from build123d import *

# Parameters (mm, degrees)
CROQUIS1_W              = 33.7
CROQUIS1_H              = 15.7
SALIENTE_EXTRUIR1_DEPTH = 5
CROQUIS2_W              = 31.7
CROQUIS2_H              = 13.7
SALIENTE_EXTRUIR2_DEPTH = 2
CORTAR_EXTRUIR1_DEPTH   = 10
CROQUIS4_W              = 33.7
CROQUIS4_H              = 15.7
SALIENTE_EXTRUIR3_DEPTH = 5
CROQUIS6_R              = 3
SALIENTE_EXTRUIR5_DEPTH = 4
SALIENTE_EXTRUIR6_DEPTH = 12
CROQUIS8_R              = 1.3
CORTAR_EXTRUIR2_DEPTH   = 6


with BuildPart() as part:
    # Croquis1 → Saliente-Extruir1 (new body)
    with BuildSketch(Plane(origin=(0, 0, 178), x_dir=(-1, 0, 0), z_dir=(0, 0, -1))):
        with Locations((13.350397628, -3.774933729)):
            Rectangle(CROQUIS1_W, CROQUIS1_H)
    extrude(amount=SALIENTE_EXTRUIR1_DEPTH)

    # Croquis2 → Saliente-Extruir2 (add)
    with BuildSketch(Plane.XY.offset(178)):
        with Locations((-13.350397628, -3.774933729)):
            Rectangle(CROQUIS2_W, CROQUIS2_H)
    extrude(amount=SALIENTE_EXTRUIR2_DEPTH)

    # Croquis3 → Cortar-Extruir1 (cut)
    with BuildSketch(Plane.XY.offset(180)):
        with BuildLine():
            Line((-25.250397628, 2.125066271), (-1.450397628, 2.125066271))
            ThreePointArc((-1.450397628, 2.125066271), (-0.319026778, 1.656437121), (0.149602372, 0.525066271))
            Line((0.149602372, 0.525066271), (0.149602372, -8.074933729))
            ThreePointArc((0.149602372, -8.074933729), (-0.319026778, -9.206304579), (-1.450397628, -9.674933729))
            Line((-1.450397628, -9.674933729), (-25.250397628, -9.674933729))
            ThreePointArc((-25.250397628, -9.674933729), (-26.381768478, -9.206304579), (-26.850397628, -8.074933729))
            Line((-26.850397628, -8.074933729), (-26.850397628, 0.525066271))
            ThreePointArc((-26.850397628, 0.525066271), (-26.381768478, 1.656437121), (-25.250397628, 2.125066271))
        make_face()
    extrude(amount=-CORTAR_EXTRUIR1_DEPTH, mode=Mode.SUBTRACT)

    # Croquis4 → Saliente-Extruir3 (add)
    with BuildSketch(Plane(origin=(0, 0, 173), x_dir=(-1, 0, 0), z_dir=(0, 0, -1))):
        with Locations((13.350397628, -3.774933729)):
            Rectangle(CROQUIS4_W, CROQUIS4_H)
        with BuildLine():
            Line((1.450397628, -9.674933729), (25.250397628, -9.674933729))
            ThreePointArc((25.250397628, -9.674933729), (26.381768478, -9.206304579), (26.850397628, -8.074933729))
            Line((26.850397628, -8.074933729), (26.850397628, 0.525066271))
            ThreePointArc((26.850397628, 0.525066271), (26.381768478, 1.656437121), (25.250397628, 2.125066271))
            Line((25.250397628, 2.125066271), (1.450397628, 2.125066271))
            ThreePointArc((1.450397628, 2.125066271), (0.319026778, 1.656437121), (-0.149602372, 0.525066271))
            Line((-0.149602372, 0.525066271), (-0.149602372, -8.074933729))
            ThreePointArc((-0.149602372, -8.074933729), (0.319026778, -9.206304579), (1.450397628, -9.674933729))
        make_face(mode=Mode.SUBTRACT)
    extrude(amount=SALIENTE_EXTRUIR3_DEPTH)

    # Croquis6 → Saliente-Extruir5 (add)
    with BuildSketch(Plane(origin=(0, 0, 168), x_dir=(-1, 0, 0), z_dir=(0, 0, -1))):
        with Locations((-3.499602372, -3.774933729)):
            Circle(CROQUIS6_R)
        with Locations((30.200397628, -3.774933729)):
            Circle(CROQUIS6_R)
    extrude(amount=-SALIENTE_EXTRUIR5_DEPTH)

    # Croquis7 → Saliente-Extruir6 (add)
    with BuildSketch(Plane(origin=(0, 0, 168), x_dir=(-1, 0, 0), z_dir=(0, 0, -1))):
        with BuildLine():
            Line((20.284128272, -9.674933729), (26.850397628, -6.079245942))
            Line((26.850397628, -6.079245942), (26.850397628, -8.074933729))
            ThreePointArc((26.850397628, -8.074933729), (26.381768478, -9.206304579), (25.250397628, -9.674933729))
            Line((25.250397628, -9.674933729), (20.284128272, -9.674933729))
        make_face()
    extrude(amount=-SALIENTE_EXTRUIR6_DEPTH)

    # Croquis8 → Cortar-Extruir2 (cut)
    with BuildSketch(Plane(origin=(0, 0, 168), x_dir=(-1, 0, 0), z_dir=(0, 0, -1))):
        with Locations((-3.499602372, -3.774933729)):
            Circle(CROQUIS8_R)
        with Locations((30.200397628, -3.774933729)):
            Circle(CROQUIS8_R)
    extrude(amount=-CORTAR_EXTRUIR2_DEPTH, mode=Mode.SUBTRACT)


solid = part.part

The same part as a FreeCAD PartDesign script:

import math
import FreeCAD as App
import Part
import Sketcher

V = App.Vector

doc = App.newDocument("Part")
params = doc.addObject("Spreadsheet::Sheet", "Params")
for row, (alias, value) in enumerate([
    ("sketch1_width", "33.7 mm"),
    ("sketch1_height", "15.7 mm"),
    ("pad1_length", "5 mm"),
    ("sketch2_width", "31.7 mm"),
    ("sketch2_height", "13.7 mm"),
    ("pad2_length", "2 mm"),
    ("sketch3_radius", "1.6 mm"),
    ("sketch3_width", "23.8 mm"),
    ("sketch3_height", "8.6 mm"),
    ("pocket1_length", "10 mm"),
    ("sketch4_radius", "1.6 mm"),
    ("sketch4_width", "33.7 mm"),
    ("sketch4_width2", "23.8 mm"),
    ("sketch4_height", "15.7 mm"),
    ("sketch4_height2", "8.6 mm"),
    ("pad3_length", "5 mm"),
    ("sketch5_diameter", "6 mm"),
    ("pad4_length", "4 mm"),
    ("sketch6_radius", "1.6 mm"),
    ("pad5_length", "12 mm"),
    ("sketch7_diameter", "2.6 mm"),
    ("pocket2_length", "6 mm"),
], start=1):
    params.set(f"A{row}", alias)
    params.set(f"B{row}", "=" + value)
    params.setAlias(f"B{row}", alias)

body = doc.addObject("PartDesign::Body", "Body")

# Sketch on XY plane
sketch1 = body.newObject("Sketcher::SketchObject", "Sketch")
sketch1.AttachmentSupport = (doc.getObject("XY_Plane"), [""])
sketch1.MapMode = "FlatFace"
sketch1.AttachmentOffset = App.Placement(V(0, 0, 178), App.Rotation())
sketch1.addGeometry(Part.LineSegment(V(3, 4, 0), V(3, -12, 0)), False)
sketch1.addGeometry(Part.LineSegment(V(3, -12, 0), V(-30, -12, 0)), False)
sketch1.addGeometry(Part.LineSegment(V(-30, -12, 0), V(-30, 4, 0)), False)
sketch1.addGeometry(Part.LineSegment(V(-30, 4, 0), V(3, 4, 0)), False)
sketch1.addConstraint(Sketcher.Constraint("Coincident", 0, 2, 1, 1))
sketch1.addConstraint(Sketcher.Constraint("Coincident", 1, 2, 2, 1))
sketch1.addConstraint(Sketcher.Constraint("Coincident", 2, 2, 3, 1))
sketch1.addConstraint(Sketcher.Constraint("Coincident", 3, 2, 0, 1))
sketch1.addConstraint(Sketcher.Constraint("Vertical", 0))
sketch1.addConstraint(Sketcher.Constraint("Horizontal", 1))
sketch1.addConstraint(Sketcher.Constraint("Vertical", 2))
sketch1.addConstraint(Sketcher.Constraint("Horizontal", 3))
sketch1.addConstraint(Sketcher.Constraint("DistanceX", 1, 2, 1, 1, 33.7))
sketch1.addConstraint(Sketcher.Constraint("DistanceY", 0, 2, 0, 1, 15.7))
sketch1.addConstraint(Sketcher.Constraint("DistanceX", -1, 1, 0, 2, 3.499602))
sketch1.addConstraint(Sketcher.Constraint("DistanceY", 0, 2, -1, 1, 11.624934))
sketch1.setExpression("Constraints[8]", "Params.sketch1_width")
sketch1.setExpression("Constraints[9]", "Params.sketch1_height")
pad1 = body.newObject("PartDesign::Pad", "Pad")
pad1.Profile = sketch1
pad1.setExpression("Length", "Params.pad1_length")
pad1.Reversed = True

# Sketch on XY plane
sketch2 = body.newObject("Sketcher::SketchObject", "Sketch001")
sketch2.AttachmentSupport = (doc.getObject("XY_Plane"), [""])
sketch2.MapMode = "FlatFace"
sketch2.AttachmentOffset = App.Placement(V(0, 0, 178), App.Rotation())
sketch2.addGeometry(Part.LineSegment(V(-29, 3, 0), V(-29, -11, 0)), False)
sketch2.addGeometry(Part.LineSegment(V(-29, -11, 0), V(2, -11, 0)), False)
sketch2.addGeometry(Part.LineSegment(V(2, -11, 0), V(2, 3, 0)), False)
sketch2.addGeometry(Part.LineSegment(V(2, 3, 0), V(-29, 3, 0)), False)
sketch2.addConstraint(Sketcher.Constraint("Coincident", 0, 2, 1, 1))
sketch2.addConstraint(Sketcher.Constraint("Coincident", 1, 2, 2, 1))
sketch2.addConstraint(Sketcher.Constraint("Coincident", 2, 2, 3, 1))
sketch2.addConstraint(Sketcher.Constraint("Coincident", 3, 2, 0, 1))
sketch2.addConstraint(Sketcher.Constraint("Vertical", 0))
sketch2.addConstraint(Sketcher.Constraint("Horizontal", 1))
sketch2.addConstraint(Sketcher.Constraint("Vertical", 2))
sketch2.addConstraint(Sketcher.Constraint("Horizontal", 3))
sketch2.addConstraint(Sketcher.Constraint("DistanceX", 1, 1, 1, 2, 31.7))
sketch2.addConstraint(Sketcher.Constraint("DistanceY", 0, 2, 0, 1, 13.7))
sketch2.addConstraint(Sketcher.Constraint("DistanceX", 0, 2, -1, 1, 29.200398))
sketch2.addConstraint(Sketcher.Constraint("DistanceY", 0, 2, -1, 1, 10.624934))
sketch2.setExpression("Constraints[8]", "Params.sketch2_width")
sketch2.setExpression("Constraints[9]", "Params.sketch2_height")
pad2 = body.newObject("PartDesign::Pad", "Pad001")
pad2.Profile = sketch2
pad2.setExpression("Length", "Params.pad2_length")

# Sketch on XY plane
sketch3 = body.newObject("Sketcher::SketchObject", "Sketch002")
sketch3.AttachmentSupport = (doc.getObject("XY_Plane"), [""])
sketch3.MapMode = "FlatFace"
sketch3.AttachmentOffset = App.Placement(V(0, 0, 180), App.Rotation())
sketch3.addGeometry(Part.LineSegment(V(-1.5, 2.1, 0), V(-25.3, 2.1, 0)), False)
sketch3.addGeometry(Part.ArcOfCircle(Part.Circle(V(-25.3, 0.5, 0), V(0, 0, 1), 1.6), math.radians(90), math.radians(180)), False)
sketch3.addGeometry(Part.LineSegment(V(-26.9, 0.5, 0), V(-26.9, -8.1, 0)), False)
sketch3.addGeometry(Part.ArcOfCircle(Part.Circle(V(-25.3, -8.1, 0), V(0, 0, 1), 1.6), math.radians(180), math.radians(270)), False)
sketch3.addGeometry(Part.LineSegment(V(-25.3, -9.7, 0), V(-1.5, -9.7, 0)), False)
sketch3.addGeometry(Part.ArcOfCircle(Part.Circle(V(-1.5, -8.1, 0), V(0, 0, 1), 1.6), math.radians(-90), math.radians(0)), False)
sketch3.addGeometry(Part.LineSegment(V(0.1, -8.1, 0), V(0.1, 0.5, 0)), False)
sketch3.addGeometry(Part.ArcOfCircle(Part.Circle(V(-1.5, 0.5, 0), V(0, 0, 1), 1.6), math.radians(0), math.radians(90)), False)
sketch3.addConstraint(Sketcher.Constraint("Tangent", 0, 2, 1, 1))
sketch3.addConstraint(Sketcher.Constraint("Tangent", 1, 2, 2, 1))
sketch3.addConstraint(Sketcher.Constraint("Tangent", 2, 2, 3, 1))
sketch3.addConstraint(Sketcher.Constraint("Tangent", 3, 2, 4, 1))
sketch3.addConstraint(Sketcher.Constraint("Tangent", 4, 2, 5, 1))
sketch3.addConstraint(Sketcher.Constraint("Tangent", 5, 2, 6, 1))
sketch3.addConstraint(Sketcher.Constraint("Tangent", 6, 2, 7, 1))
sketch3.addConstraint(Sketcher.Constraint("Tangent", 7, 2, 0, 1))
sketch3.addConstraint(Sketcher.Constraint("Horizontal", 0))
sketch3.addConstraint(Sketcher.Constraint("Vertical", 2))
sketch3.addConstraint(Sketcher.Constraint("Horizontal", 4))
sketch3.addConstraint(Sketcher.Constraint("Vertical", 6))
sketch3.addConstraint(Sketcher.Constraint("Equal", 1, 3))
sketch3.addConstraint(Sketcher.Constraint("Equal", 3, 5))
sketch3.addConstraint(Sketcher.Constraint("Equal", 5, 7))
sketch3.addConstraint(Sketcher.Constraint("Radius", 1, 1.6))
sketch3.addConstraint(Sketcher.Constraint("DistanceX", 0, 2, 0, 1, 23.8))
sketch3.addConstraint(Sketcher.Constraint("DistanceY", 2, 2, 2, 1, 8.6))
sketch3.addConstraint(Sketcher.Constraint("DistanceX", 1, 3, -1, 1, 25.250398))
sketch3.addConstraint(Sketcher.Constraint("DistanceY", -1, 1, 1, 3, 0.525066))
sketch3.setExpression("Constraints[15]", "Params.sketch3_radius")
sketch3.setExpression("Constraints[16]", "Params.sketch3_width")
sketch3.setExpression("Constraints[17]", "Params.sketch3_height")
pocket1 = body.newObject("PartDesign::Pocket", "Pocket")
pocket1.Profile = sketch3
pocket1.setExpression("Length", "Params.pocket1_length")

# Sketch on XY plane
sketch4 = body.newObject("Sketcher::SketchObject", "Sketch003")
sketch4.AttachmentSupport = (doc.getObject("XY_Plane"), [""])
sketch4.MapMode = "FlatFace"
sketch4.AttachmentOffset = App.Placement(V(0, 0, 173), App.Rotation())
sketch4.addGeometry(Part.LineSegment(V(3.5, 4.1, 0), V(3.5, -11.6, 0)), False)
sketch4.addGeometry(Part.LineSegment(V(3.5, -11.6, 0), V(-30.2, -11.6, 0)), False)
sketch4.addGeometry(Part.LineSegment(V(-30.2, -11.6, 0), V(-30.2, 4.1, 0)), False)
sketch4.addGeometry(Part.LineSegment(V(-30.2, 4.1, 0), V(3.5, 4.1, 0)), False)
sketch4.addGeometry(Part.LineSegment(V(-25.3, -9.7, 0), V(-1.5, -9.7, 0)), False)
sketch4.addGeometry(Part.ArcOfCircle(Part.Circle(V(-1.5, -8.1, 0), V(0, 0, 1), 1.6), math.radians(-90), math.radians(0)), False)
sketch4.addGeometry(Part.LineSegment(V(0.1, -8.1, 0), V(0.1, 0.5, 0)), False)
sketch4.addGeometry(Part.ArcOfCircle(Part.Circle(V(-1.5, 0.5, 0), V(0, 0, 1), 1.6), math.radians(0), math.radians(90)), False)
sketch4.addGeometry(Part.LineSegment(V(-1.5, 2.1, 0), V(-25.3, 2.1, 0)), False)
sketch4.addGeometry(Part.ArcOfCircle(Part.Circle(V(-25.3, 0.5, 0), V(0, 0, 1), 1.6), math.radians(90), math.radians(180)), False)
sketch4.addGeometry(Part.LineSegment(V(-26.9, 0.5, 0), V(-26.9, -8.1, 0)), False)
sketch4.addGeometry(Part.ArcOfCircle(Part.Circle(V(-25.3, -8.1, 0), V(0, 0, 1), 1.6), math.radians(180), math.radians(270)), False)
sketch4.addConstraint(Sketcher.Constraint("Coincident", 0, 2, 1, 1))
sketch4.addConstraint(Sketcher.Constraint("Coincident", 1, 2, 2, 1))
sketch4.addConstraint(Sketcher.Constraint("Coincident", 2, 2, 3, 1))
sketch4.addConstraint(Sketcher.Constraint("Coincident", 3, 2, 0, 1))
sketch4.addConstraint(Sketcher.Constraint("Tangent", 4, 2, 5, 1))
sketch4.addConstraint(Sketcher.Constraint("Tangent", 5, 2, 6, 1))
sketch4.addConstraint(Sketcher.Constraint("Tangent", 6, 2, 7, 1))
sketch4.addConstraint(Sketcher.Constraint("Tangent", 7, 2, 8, 1))
sketch4.addConstraint(Sketcher.Constraint("Tangent", 8, 2, 9, 1))
sketch4.addConstraint(Sketcher.Constraint("Tangent", 9, 2, 10, 1))
sketch4.addConstraint(Sketcher.Constraint("Tangent", 10, 2, 11, 1))
sketch4.addConstraint(Sketcher.Constraint("Tangent", 11, 2, 4, 1))
sketch4.addConstraint(Sketcher.Constraint("Vertical", 0))
sketch4.addConstraint(Sketcher.Constraint("Horizontal", 1))
sketch4.addConstraint(Sketcher.Constraint("Vertical", 2))
sketch4.addConstraint(Sketcher.Constraint("Horizontal", 3))
sketch4.addConstraint(Sketcher.Constraint("Horizontal", 4))
sketch4.addConstraint(Sketcher.Constraint("Vertical", 6))
sketch4.addConstraint(Sketcher.Constraint("Horizontal", 8))
sketch4.addConstraint(Sketcher.Constraint("Vertical", 10))
sketch4.addConstraint(Sketcher.Constraint("Equal", 5, 7))
sketch4.addConstraint(Sketcher.Constraint("Equal", 7, 9))
sketch4.addConstraint(Sketcher.Constraint("Equal", 9, 11))
sketch4.addConstraint(Sketcher.Constraint("Radius", 5, 1.6))
sketch4.addConstraint(Sketcher.Constraint("DistanceX", 1, 2, 1, 1, 33.7))
sketch4.addConstraint(Sketcher.Constraint("DistanceX", 4, 1, 4, 2, 23.8))
sketch4.addConstraint(Sketcher.Constraint("DistanceY", 0, 2, 0, 1, 15.7))
sketch4.addConstraint(Sketcher.Constraint("DistanceY", 6, 1, 6, 2, 8.6))
sketch4.addConstraint(Sketcher.Constraint("DistanceX", 5, 3, 0, 2, 4.95))
sketch4.addConstraint(Sketcher.Constraint("DistanceY", 0, 2, 5, 3, 3.55))
sketch4.addConstraint(Sketcher.Constraint("DistanceX", 5, 3, -1, 1, 1.450398))
sketch4.addConstraint(Sketcher.Constraint("DistanceY", 5, 3, -1, 1, 8.074934))
sketch4.setExpression("Constraints[23]", "Params.sketch4_radius")
sketch4.setExpression("Constraints[24]", "Params.sketch4_width")
sketch4.setExpression("Constraints[25]", "Params.sketch4_width2")
sketch4.setExpression("Constraints[26]", "Params.sketch4_height")
sketch4.setExpression("Constraints[27]", "Params.sketch4_height2")
pad3 = body.newObject("PartDesign::Pad", "Pad002")
pad3.Profile = sketch4
pad3.setExpression("Length", "Params.pad3_length")
pad3.Reversed = True

# Sketch on XY plane
sketch5 = body.newObject("Sketcher::SketchObject", "Sketch004")
sketch5.AttachmentSupport = (doc.getObject("XY_Plane"), [""])
sketch5.MapMode = "FlatFace"
sketch5.AttachmentOffset = App.Placement(V(0, 0, 168), App.Rotation())
sketch5.addGeometry(Part.Circle(V(3.5, -3.8, 0), V(0, 0, 1), 3), False)
sketch5.addGeometry(Part.Circle(V(-30.2, -3.8, 0), V(0, 0, 1), 3), False)
sketch5.addConstraint(Sketcher.Constraint("Equal", 0, 1))
sketch5.addConstraint(Sketcher.Constraint("Horizontal", 0, 3, 1, 3))
sketch5.addConstraint(Sketcher.Constraint("Diameter", 0, 6.0))
sketch5.addConstraint(Sketcher.Constraint("DistanceX", 1, 3, 0, 3, 33.7))
sketch5.addConstraint(Sketcher.Constraint("DistanceX", -1, 1, 0, 3, 3.499602))
sketch5.addConstraint(Sketcher.Constraint("DistanceY", 0, 3, -1, 1, 3.774934))
sketch5.setExpression("Constraints[2]", "Params.sketch5_diameter")
pad4 = body.newObject("PartDesign::Pad", "Pad003")
pad4.Profile = sketch5
pad4.setExpression("Length", "Params.pad4_length")

# Sketch on XY plane
sketch6 = body.newObject("Sketcher::SketchObject", "Sketch005")
sketch6.AttachmentSupport = (doc.getObject("XY_Plane"), [""])
sketch6.MapMode = "FlatFace"
sketch6.AttachmentOffset = App.Placement(V(0, 0, 168), App.Rotation())
sketch6.addGeometry(Part.LineSegment(V(-26.9, -6.1, 0), V(-20.3, -9.7, 0)), False)
sketch6.addGeometry(Part.LineSegment(V(-20.3, -9.7, 0), V(-25.3, -9.7, 0)), False)
sketch6.addGeometry(Part.ArcOfCircle(Part.Circle(V(-25.3, -8.1, 0), V(0, 0, 1), 1.6), math.radians(180), math.radians(270)), False)
sketch6.addGeometry(Part.LineSegment(V(-26.9, -8.1, 0), V(-26.9, -6.1, 0)), False)
sketch6.addConstraint(Sketcher.Constraint("Coincident", 0, 2, 1, 1))
sketch6.addConstraint(Sketcher.Constraint("Tangent", 1, 2, 2, 2))
sketch6.addConstraint(Sketcher.Constraint("Tangent", 2, 1, 3, 1))
sketch6.addConstraint(Sketcher.Constraint("Coincident", 3, 2, 0, 1))
sketch6.addConstraint(Sketcher.Constraint("Horizontal", 1))
sketch6.addConstraint(Sketcher.Constraint("Vertical", 3))
sketch6.addConstraint(Sketcher.Constraint("Radius", 2, 1.6))
sketch6.addConstraint(Sketcher.Constraint("DistanceX", 1, 2, 1, 1, 4.966269))
sketch6.addConstraint(Sketcher.Constraint("Distance", 0, 7.486312))
sketch6.addConstraint(Sketcher.Constraint("DistanceX", 0, 2, -1, 1, 20.284128))
sketch6.addConstraint(Sketcher.Constraint("DistanceY", 2, 3, -1, 1, 8.074934))
sketch6.setExpression("Constraints[6]", "Params.sketch6_radius")
pad5 = body.newObject("PartDesign::Pad", "Pad004")
pad5.Profile = sketch6
pad5.setExpression("Length", "Params.pad5_length")

# Sketch on XY plane
sketch7 = body.newObject("Sketcher::SketchObject", "Sketch006")
sketch7.AttachmentSupport = (doc.getObject("XY_Plane"), [""])
sketch7.MapMode = "FlatFace"
sketch7.AttachmentOffset = App.Placement(V(0, 0, 168), App.Rotation())
sketch7.addGeometry(Part.Circle(V(3.5, -3.8, 0), V(0, 0, 1), 1.3), False)
sketch7.addGeometry(Part.Circle(V(-30.2, -3.8, 0), V(0, 0, 1), 1.3), False)
sketch7.addConstraint(Sketcher.Constraint("Equal", 0, 1))
sketch7.addConstraint(Sketcher.Constraint("Horizontal", 0, 3, 1, 3))
sketch7.addConstraint(Sketcher.Constraint("Diameter", 0, 2.6))
sketch7.addConstraint(Sketcher.Constraint("DistanceX", 1, 3, 0, 3, 33.7))
sketch7.addConstraint(Sketcher.Constraint("DistanceX", -1, 1, 0, 3, 3.499602))
sketch7.addConstraint(Sketcher.Constraint("DistanceY", 0, 3, -1, 1, 3.774934))
sketch7.setExpression("Constraints[2]", "Params.sketch7_diameter")
pocket2 = body.newObject("PartDesign::Pocket", "Pocket001")
pocket2.Profile = sketch7
pocket2.setExpression("Length", "Params.pocket2_length")
pocket2.Reversed = True

doc.recompute()
